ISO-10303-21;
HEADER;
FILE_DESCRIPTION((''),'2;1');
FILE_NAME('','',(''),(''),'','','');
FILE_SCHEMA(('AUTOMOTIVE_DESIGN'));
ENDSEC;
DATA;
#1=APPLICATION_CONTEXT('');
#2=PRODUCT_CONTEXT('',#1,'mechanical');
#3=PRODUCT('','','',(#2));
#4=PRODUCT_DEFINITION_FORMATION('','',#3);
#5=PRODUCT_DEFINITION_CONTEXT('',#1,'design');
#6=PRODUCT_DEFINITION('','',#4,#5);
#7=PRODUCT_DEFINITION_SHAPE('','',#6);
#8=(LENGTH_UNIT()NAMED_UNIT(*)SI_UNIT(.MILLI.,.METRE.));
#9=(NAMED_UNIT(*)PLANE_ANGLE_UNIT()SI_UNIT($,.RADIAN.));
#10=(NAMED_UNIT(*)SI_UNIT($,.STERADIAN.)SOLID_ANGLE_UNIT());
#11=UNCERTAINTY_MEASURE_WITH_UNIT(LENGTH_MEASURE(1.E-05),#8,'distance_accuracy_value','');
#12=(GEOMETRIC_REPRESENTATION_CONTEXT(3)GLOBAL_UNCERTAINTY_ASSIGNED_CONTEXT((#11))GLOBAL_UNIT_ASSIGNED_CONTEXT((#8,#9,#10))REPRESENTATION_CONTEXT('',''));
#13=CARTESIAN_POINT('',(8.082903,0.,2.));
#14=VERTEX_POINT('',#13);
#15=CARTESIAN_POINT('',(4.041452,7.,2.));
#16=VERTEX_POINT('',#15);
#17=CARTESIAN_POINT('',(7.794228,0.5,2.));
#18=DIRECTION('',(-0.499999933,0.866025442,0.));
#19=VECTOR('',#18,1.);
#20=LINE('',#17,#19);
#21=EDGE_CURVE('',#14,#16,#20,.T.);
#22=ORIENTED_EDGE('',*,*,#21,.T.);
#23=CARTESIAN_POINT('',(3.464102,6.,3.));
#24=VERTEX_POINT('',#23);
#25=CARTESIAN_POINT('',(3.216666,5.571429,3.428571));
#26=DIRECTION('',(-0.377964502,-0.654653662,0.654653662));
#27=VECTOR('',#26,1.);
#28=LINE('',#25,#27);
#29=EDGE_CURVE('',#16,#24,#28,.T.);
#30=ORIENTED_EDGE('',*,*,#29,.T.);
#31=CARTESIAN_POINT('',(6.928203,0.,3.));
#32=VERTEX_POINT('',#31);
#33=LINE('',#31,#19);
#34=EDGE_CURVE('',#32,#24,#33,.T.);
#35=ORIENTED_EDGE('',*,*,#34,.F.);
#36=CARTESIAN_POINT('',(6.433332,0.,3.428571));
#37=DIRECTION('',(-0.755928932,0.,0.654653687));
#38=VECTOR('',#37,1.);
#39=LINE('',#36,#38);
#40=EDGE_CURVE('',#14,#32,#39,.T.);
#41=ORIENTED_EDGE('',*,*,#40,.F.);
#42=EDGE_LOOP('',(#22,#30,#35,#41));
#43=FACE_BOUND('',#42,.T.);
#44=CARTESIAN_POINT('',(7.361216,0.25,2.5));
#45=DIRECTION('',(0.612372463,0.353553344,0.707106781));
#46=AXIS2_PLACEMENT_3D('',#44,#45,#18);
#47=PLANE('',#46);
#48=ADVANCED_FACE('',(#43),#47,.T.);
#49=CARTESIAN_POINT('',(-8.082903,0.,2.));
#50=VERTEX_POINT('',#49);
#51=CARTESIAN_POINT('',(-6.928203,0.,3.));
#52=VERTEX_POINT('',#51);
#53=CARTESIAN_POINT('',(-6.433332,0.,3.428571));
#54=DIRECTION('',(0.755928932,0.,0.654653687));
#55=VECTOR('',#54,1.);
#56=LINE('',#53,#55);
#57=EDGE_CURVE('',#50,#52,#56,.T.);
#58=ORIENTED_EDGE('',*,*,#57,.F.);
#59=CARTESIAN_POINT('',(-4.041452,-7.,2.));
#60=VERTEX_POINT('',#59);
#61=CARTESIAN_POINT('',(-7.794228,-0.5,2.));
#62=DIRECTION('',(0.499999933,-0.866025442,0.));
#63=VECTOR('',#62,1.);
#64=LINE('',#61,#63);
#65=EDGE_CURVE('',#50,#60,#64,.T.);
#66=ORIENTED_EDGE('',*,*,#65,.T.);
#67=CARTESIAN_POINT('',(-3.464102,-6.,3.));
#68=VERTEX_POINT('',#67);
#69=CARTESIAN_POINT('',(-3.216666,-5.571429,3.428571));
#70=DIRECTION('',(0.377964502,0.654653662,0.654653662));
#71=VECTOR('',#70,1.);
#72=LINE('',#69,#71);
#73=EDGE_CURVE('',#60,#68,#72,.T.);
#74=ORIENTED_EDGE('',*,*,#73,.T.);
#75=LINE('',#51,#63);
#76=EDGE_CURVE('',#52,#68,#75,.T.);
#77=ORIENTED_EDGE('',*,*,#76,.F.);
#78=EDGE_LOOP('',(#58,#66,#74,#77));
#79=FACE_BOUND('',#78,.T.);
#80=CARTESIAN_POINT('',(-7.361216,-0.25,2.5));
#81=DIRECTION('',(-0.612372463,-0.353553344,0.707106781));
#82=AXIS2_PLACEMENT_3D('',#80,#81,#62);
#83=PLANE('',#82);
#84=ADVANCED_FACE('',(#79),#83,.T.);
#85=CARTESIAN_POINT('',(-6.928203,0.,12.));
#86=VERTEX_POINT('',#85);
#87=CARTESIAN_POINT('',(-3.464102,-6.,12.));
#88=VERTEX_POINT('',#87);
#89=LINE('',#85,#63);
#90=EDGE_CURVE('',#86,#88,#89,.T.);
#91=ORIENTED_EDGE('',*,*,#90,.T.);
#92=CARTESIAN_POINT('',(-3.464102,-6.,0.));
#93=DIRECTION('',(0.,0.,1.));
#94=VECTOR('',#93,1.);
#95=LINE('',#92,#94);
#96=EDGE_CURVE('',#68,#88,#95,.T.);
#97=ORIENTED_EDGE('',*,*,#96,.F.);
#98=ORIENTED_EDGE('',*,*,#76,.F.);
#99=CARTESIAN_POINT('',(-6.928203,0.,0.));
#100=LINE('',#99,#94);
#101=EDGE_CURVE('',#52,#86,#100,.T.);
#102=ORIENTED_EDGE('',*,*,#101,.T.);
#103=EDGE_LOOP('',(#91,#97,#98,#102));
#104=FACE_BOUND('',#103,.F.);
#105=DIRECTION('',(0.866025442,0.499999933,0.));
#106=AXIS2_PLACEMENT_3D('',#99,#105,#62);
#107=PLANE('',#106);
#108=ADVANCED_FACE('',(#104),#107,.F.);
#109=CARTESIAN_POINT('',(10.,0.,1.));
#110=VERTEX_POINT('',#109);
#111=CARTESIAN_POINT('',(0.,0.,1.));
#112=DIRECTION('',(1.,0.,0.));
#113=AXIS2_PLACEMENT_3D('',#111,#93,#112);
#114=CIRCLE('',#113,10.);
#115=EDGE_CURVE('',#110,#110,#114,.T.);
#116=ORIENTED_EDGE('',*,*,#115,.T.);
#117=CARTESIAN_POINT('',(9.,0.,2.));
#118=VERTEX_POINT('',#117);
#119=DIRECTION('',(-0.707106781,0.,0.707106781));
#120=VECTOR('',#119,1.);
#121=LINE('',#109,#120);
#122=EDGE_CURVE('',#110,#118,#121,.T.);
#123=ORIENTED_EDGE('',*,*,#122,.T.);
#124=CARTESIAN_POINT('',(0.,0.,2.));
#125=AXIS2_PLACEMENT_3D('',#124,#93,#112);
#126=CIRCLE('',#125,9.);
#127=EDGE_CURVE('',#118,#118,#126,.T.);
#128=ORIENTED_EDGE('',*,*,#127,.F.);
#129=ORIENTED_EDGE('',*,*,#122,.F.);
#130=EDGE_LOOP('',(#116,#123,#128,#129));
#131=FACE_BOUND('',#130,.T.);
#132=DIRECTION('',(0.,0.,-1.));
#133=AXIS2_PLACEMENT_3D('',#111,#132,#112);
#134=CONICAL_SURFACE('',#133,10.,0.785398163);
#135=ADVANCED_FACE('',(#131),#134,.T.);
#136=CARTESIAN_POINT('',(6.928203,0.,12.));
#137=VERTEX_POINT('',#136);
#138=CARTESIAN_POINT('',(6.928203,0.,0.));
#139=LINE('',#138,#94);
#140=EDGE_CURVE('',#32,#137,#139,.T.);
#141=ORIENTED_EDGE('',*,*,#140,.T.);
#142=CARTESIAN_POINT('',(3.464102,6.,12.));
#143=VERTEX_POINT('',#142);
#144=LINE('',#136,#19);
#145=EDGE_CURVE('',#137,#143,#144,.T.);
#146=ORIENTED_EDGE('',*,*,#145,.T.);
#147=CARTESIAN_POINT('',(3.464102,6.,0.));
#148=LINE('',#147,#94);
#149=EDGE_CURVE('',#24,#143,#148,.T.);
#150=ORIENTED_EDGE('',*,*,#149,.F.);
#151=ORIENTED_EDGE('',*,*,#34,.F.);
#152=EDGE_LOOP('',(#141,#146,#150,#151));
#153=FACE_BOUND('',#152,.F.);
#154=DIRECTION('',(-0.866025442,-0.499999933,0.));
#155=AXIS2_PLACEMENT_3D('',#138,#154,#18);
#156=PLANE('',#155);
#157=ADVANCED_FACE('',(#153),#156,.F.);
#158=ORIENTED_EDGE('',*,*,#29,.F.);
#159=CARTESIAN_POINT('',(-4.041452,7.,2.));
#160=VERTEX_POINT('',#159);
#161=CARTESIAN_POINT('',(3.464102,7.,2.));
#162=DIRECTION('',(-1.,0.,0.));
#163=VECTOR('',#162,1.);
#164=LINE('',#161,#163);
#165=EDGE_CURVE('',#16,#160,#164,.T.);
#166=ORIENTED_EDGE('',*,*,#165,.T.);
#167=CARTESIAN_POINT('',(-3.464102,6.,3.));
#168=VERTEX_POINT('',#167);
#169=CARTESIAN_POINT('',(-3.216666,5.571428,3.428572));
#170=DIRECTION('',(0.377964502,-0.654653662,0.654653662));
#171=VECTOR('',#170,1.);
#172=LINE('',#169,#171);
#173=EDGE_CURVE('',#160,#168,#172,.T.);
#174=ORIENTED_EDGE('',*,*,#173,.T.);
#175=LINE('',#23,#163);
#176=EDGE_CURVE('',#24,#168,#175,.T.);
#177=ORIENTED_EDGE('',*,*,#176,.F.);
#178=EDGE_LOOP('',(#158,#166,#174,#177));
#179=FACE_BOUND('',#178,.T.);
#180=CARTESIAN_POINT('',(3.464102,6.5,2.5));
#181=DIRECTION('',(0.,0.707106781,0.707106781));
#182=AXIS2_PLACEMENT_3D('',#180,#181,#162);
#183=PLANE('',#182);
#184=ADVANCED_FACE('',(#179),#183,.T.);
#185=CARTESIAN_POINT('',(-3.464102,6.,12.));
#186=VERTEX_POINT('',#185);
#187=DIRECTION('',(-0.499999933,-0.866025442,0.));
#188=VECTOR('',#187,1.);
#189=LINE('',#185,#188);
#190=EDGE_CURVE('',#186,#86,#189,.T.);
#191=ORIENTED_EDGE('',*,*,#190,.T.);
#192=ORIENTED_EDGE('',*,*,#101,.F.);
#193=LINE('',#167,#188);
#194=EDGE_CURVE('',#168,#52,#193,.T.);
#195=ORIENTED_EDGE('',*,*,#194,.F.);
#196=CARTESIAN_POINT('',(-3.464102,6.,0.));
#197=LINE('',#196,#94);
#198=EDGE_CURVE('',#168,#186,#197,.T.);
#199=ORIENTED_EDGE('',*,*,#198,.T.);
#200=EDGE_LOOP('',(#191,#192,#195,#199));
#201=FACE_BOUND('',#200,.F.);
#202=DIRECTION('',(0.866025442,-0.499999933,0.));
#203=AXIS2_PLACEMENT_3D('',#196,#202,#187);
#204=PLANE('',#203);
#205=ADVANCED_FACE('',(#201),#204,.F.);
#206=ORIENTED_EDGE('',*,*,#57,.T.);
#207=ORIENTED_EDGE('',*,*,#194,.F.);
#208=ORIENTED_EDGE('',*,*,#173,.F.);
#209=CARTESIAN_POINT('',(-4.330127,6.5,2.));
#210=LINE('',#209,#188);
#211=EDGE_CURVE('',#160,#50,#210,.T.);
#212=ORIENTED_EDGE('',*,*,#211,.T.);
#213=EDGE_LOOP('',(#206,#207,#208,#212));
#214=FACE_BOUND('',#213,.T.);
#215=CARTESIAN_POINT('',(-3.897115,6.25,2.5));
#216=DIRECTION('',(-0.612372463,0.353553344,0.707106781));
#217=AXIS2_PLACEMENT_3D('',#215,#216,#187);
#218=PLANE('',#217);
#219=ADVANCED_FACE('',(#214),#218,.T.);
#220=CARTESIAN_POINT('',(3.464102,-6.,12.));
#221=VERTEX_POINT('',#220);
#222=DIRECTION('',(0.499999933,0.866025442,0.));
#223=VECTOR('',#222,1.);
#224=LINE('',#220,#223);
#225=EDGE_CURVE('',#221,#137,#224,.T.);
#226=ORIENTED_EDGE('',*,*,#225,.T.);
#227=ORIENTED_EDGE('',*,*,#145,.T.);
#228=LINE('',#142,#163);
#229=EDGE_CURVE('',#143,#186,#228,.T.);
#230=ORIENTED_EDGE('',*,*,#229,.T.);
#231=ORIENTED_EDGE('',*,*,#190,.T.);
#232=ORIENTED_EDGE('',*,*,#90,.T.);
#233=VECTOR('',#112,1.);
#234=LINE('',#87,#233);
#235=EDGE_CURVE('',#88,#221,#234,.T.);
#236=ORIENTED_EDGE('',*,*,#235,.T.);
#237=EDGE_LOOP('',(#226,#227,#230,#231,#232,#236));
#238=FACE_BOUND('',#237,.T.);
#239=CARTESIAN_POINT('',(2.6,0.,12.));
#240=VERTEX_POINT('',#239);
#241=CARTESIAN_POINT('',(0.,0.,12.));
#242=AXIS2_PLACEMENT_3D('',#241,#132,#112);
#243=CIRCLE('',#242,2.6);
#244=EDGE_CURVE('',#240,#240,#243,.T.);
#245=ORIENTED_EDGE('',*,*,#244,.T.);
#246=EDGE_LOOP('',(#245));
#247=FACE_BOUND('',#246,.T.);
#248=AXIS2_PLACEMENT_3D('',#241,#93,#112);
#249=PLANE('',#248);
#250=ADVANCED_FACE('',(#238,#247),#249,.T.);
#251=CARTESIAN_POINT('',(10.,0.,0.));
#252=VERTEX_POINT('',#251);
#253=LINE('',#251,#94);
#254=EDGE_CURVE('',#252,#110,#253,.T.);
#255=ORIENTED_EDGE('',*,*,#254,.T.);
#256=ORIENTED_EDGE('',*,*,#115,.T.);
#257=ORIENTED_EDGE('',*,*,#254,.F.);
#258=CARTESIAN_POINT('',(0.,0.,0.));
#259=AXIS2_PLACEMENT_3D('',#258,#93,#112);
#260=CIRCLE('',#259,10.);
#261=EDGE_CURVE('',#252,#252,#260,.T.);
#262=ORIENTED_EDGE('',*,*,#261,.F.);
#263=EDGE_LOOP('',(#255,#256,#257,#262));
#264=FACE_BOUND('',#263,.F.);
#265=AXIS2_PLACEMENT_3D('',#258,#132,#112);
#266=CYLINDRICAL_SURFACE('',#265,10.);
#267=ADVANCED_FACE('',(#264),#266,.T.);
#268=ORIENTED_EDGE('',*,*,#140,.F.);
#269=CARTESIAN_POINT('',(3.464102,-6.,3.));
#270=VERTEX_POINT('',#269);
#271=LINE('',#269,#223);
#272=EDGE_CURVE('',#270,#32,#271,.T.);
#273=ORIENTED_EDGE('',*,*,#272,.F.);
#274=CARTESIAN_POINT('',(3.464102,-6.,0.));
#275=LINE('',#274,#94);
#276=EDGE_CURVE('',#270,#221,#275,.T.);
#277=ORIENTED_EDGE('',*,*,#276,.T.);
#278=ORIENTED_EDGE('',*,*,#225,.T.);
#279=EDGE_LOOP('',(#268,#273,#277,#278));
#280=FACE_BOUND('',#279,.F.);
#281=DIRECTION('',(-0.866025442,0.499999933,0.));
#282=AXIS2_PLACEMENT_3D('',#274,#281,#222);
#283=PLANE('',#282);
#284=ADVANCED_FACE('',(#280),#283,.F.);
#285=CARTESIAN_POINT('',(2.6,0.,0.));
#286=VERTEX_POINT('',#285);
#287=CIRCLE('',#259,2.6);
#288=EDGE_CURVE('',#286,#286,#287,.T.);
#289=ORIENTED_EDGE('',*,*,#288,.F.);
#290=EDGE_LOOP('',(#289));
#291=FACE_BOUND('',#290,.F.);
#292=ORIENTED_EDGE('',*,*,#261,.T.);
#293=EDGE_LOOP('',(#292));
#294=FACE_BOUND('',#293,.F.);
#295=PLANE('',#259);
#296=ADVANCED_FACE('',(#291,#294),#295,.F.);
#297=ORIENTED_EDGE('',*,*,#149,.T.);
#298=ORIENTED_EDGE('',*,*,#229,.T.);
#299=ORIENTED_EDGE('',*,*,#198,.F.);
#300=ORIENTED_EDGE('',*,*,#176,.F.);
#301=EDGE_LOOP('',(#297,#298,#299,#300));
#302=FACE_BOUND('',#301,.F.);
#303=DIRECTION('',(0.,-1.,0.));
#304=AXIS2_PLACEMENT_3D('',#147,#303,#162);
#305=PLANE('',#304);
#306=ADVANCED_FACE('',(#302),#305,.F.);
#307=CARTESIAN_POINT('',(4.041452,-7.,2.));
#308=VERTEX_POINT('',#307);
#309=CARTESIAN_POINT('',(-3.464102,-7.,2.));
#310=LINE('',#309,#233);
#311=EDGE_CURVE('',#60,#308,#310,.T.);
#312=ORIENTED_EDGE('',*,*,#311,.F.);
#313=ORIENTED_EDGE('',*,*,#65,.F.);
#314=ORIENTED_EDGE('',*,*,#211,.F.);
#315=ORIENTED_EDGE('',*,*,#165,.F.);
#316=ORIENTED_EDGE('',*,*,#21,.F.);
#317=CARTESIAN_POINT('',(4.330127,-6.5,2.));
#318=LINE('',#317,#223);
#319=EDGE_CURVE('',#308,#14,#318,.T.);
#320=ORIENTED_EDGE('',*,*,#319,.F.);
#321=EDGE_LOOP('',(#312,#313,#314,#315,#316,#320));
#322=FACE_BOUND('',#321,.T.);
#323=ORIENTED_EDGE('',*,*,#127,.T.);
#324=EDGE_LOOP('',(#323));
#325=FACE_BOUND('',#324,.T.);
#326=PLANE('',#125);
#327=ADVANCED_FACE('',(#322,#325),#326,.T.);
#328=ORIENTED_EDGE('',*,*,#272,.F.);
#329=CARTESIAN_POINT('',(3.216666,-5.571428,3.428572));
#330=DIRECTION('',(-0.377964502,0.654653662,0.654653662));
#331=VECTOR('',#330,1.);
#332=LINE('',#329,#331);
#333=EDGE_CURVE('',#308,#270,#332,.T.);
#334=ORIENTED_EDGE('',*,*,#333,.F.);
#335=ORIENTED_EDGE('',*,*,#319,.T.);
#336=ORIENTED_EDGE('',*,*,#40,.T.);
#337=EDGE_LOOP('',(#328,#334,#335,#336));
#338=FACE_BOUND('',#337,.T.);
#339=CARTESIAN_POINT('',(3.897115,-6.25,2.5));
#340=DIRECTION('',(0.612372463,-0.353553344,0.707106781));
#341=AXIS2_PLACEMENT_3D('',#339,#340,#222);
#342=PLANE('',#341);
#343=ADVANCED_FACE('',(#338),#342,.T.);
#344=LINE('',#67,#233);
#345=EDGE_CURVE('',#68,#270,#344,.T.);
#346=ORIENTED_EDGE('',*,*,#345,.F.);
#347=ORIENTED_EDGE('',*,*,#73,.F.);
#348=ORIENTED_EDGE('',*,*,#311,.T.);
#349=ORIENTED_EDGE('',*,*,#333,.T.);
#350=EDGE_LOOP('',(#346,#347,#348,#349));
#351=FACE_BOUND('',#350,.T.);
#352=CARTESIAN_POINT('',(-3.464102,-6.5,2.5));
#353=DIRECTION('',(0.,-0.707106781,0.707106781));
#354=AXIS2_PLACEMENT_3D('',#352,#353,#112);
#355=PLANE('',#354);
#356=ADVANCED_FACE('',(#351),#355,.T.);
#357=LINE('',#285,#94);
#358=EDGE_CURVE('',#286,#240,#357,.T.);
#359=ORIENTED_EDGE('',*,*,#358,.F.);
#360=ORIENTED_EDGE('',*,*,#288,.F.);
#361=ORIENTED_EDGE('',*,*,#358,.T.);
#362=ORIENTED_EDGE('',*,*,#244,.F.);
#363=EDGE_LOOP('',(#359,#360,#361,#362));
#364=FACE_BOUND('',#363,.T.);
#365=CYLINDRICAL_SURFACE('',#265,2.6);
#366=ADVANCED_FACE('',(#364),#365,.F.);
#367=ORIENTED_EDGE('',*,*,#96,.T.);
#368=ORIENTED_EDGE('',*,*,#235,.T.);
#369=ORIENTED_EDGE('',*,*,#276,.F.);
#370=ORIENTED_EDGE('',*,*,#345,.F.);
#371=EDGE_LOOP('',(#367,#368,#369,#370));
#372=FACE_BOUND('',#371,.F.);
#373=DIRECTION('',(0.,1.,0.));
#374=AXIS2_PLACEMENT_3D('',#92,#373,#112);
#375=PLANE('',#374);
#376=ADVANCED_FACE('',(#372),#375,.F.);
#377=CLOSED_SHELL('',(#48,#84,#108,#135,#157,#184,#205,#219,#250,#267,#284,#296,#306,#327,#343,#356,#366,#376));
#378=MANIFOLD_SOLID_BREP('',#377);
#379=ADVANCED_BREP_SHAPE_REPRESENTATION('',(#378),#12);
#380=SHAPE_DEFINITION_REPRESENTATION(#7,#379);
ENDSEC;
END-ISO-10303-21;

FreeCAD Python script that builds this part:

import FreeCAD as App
import Part
import Sketcher

V = App.Vector
Q = App.Units.Quantity


def edges_at(feature, points):
    """Names of the edges that pass closest to the given points."""
    edges = feature.Shape.Edges
    near = lambda p: min(range(len(edges)), key=lambda i: edges[i].distToShape(Part.Vertex(*p))[0])
    return sorted({f"Edge{near(p) + 1}" for p in points})

doc = App.newDocument("Part")
body = doc.addObject("PartDesign::Body", "Body")

sketch1 = body.newObject("Sketcher::SketchObject", "Sketch")
sketch1.AttachmentSupport = (doc.getObject("XY_Plane"), [""])
sketch1.MapMode = "FlatFace"
sketch1.addGeometry(Part.LineSegment(V(3.464102, 6, 0), V(-3.464102, 6, 0)), False)
sketch1.addGeometry(Part.LineSegment(V(-3.464102, 6, 0), V(-6.928203, 0, 0)), False)
sketch1.addGeometry(Part.LineSegment(V(-6.928203, 0, 0), V(-3.464102, -6, 0)), False)
sketch1.addGeometry(Part.LineSegment(V(-3.464102, -6, 0), V(3.464102, -6, 0)), False)
sketch1.addGeometry(Part.LineSegment(V(3.464102, -6, 0), V(6.928203, 0, 0)), False)
sketch1.addGeometry(Part.LineSegment(V(6.928203, 0, 0), V(3.464102, 6, 0)), False)
sketch1.addConstraint(Sketcher.Constraint("Coincident", 0, 2, 1, 1))
sketch1.addConstraint(Sketcher.Constraint("Coincident", 1, 2, 2, 1))
sketch1.addConstraint(Sketcher.Constraint("Coincident", 2, 2, 3, 1))
sketch1.addConstraint(Sketcher.Constraint("Coincident", 3, 2, 4, 1))
sketch1.addConstraint(Sketcher.Constraint("Coincident", 4, 2, 5, 1))
sketch1.addConstraint(Sketcher.Constraint("Coincident", 5, 2, 0, 1))
sketch1.addConstraint(Sketcher.Constraint("Horizontal", 0))
sketch1.addConstraint(Sketcher.Constraint("Horizontal", 3))
sketch1.addConstraint(Sketcher.Constraint("Symmetric", 0, 2, 3, 2, -1, 1))
sketch1.addConstraint(Sketcher.Constraint("Symmetric", 1, 2, 4, 2, -1, 1))
sketch1.addConstraint(Sketcher.Constraint("PointOnObject", 1, 2, -1))
sketch1.addConstraint(Sketcher.Constraint("Parallel", 2, 5))
sketch1.addConstraint(Sketcher.Constraint("Vertical", 0, 2, 2, 2))
sketch1.addConstraint(Sketcher.Constraint("Angle", 1, Q("-119.999996 deg")))
sketch1.addConstraint(Sketcher.Constraint("DistanceY", -1, 1, 0, 2, Q("6 mm")))
sketch1.addConstraint(Sketcher.Constraint("DistanceX", 0, 2, -1, 1, Q("3.464102 mm")))
pad1 = body.newObject("PartDesign::Pad", "Pad")
pad1.Profile = sketch1
pad1.Length = 12

sketch2 = body.newObject("Sketcher::SketchObject", "Sketch001")
sketch2.AttachmentSupport = (doc.getObject("XY_Plane"), [""])
sketch2.MapMode = "FlatFace"
sketch2.addGeometry(Part.Circle(V(0, 0, 0), V(0, 0, 1), 10), False)
sketch2.addGeometry(Part.Circle(V(0, 0, 0), V(0, 0, 1), 4.6), False)
sketch2.addConstraint(Sketcher.Constraint("Coincident", 0, 3, -1, 1))
sketch2.addConstraint(Sketcher.Constraint("Coincident", 1, 3, -1, 1))
sketch2.addConstraint(Sketcher.Constraint("Diameter", 0, Q("20 mm")))
sketch2.addConstraint(Sketcher.Constraint("Diameter", 1, Q("9.2 mm")))
pad2 = body.newObject("PartDesign::Pad", "Pad001")
pad2.Profile = sketch2
pad2.Length = 2

sketch3 = body.newObject("Sketcher::SketchObject", "Sketch002")
sketch3.AttachmentSupport = (doc.getObject("XY_Plane"), [""])
sketch3.MapMode = "FlatFace"
sketch3.addGeometry(Part.Circle(V(0, 0, 0), V(0, 0, 1), 2.6), False)
sketch3.addConstraint(Sketcher.Constraint("Coincident", 0, 3, -1, 1))
sketch3.addConstraint(Sketcher.Constraint("Diameter", 0, Q("5.2 mm")))
pocket1 = body.newObject("PartDesign::Pocket", "Pocket")
pocket1.Profile = sketch3
pocket1.Type = "ThroughAll"
pocket1.Reversed = True
doc.recompute()

chamfer = body.newObject("PartDesign::Chamfer", "Chamfer")
chamfer.Base = (pocket1, edges_at(pocket1, [
    (-10, 0, 2),
    (0, 6, 2),
    (-5.196, 3, 2),
    (-5.196, -3, 2),
    (0, -6, 2),
    (5.196, -3, 2),
    (5.196, 3, 2),
]))
chamfer.Size = 1

doc.recompute()
